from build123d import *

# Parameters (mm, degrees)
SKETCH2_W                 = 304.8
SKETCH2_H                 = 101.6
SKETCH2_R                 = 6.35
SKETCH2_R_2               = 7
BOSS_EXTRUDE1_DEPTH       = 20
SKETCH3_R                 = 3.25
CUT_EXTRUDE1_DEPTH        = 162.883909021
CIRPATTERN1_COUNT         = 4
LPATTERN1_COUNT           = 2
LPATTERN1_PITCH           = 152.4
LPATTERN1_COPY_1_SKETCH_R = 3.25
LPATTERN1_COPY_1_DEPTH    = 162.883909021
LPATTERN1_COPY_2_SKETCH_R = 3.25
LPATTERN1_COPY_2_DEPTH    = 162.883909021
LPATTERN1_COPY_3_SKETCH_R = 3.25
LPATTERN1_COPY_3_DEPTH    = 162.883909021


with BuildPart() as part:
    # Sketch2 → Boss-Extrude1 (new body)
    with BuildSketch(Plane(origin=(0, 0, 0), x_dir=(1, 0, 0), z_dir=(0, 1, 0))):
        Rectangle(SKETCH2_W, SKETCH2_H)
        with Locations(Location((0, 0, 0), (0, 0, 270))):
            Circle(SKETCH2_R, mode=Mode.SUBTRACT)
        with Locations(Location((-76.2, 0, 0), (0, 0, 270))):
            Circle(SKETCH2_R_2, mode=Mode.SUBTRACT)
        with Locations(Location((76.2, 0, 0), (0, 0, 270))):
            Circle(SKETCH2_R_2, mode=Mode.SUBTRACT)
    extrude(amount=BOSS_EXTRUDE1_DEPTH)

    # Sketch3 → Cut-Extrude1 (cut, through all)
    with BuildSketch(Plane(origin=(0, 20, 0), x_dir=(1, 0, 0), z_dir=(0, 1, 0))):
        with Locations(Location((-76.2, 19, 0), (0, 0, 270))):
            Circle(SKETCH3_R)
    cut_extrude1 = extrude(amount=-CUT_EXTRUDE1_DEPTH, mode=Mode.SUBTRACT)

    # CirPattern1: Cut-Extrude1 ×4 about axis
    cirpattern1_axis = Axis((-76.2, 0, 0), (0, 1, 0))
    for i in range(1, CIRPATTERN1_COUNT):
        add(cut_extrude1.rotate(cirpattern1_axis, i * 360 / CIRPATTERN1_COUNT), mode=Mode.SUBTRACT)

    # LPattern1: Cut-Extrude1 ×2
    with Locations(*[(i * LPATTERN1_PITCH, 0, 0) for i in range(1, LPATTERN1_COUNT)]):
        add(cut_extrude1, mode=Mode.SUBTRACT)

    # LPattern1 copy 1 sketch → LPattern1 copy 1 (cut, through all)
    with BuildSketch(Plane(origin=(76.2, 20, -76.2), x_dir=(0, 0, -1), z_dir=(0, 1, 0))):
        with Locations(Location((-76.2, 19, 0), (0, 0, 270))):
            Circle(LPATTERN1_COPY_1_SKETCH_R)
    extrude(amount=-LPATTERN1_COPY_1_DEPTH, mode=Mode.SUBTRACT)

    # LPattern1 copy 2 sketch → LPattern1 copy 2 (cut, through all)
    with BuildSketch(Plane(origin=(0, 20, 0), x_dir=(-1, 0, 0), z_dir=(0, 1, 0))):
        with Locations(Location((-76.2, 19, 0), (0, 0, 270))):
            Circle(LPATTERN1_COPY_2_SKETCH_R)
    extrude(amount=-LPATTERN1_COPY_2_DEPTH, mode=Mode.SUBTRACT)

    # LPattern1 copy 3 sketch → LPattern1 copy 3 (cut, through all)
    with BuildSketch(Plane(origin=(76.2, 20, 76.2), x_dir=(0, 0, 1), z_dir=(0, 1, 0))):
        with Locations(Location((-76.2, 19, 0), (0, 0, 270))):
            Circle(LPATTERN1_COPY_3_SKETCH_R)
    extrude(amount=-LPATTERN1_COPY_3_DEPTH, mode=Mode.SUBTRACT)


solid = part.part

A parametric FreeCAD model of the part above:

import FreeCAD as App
import Part
import Sketcher

V = App.Vector
Q = App.Units.Quantity


def add_polygon(sketch, points):
    """Adds a closed chain of lines whose ends are joined by coincident constraints."""
    first, n = sketch.GeometryCount, len(points)
    for a, b in zip(points, points[1:] + points[:1]):
        sketch.addGeometry(Part.LineSegment(App.Vector(*a, 0), App.Vector(*b, 0)), False)
    for i in range(n):
        sketch.addConstraint(Sketcher.Constraint("Coincident", first + i, 2, first + (i + 1) % n, 1))

doc = App.newDocument("Part")
body = doc.addObject("PartDesign::Body", "Body")

# Sketch on XZ plane
sketch1 = doc.addObject("Sketcher::SketchObject", "Sketch")
body.addObject(sketch1)
sketch1.AttachmentSupport = (doc.XZ_Plane, [""])
sketch1.MapMode = "FlatFace"
add_polygon(sketch1, [(-152.4, -50.8), (-152.4, 50.8), (152.4, 50.8), (152.4, -50.8)])  # lines 0-3
sketch1.addGeometry(Part.Circle(V(-76.2, 0, 0), V(0, 0, 1), 7), False)  # 4
sketch1.addGeometry(Part.Circle(V(0, 0, 0), V(0, 0, 1), 6.35), False)  # 5
sketch1.addGeometry(Part.Circle(V(76.2, 0, 0), V(0, 0, 1), 7), False)  # 6
sketch1.addConstraint([
    Sketcher.Constraint("Vertical", 0),
    Sketcher.Constraint("Horizontal", 1),
    Sketcher.Constraint("Vertical", 2),
    Sketcher.Constraint("Horizontal", 3),
    Sketcher.Constraint("Coincident", 5, 3, -1, 1),
    Sketcher.Constraint("Equal", 4, 6),
    Sketcher.Constraint("Symmetric", 4, 3, 6, 3, -1, 1),
    Sketcher.Constraint("Symmetric", 0, 2, 2, 2, -1, 1),
    Sketcher.Constraint("PointOnObject", 4, 3, -1),
    Sketcher.Constraint("Diameter", 4, Q("14 mm")),
    Sketcher.Constraint("Diameter", 5, Q("12.7 mm")),
    Sketcher.Constraint("DistanceX", 1, 1, 1, 2, Q("304.8 mm")),
    Sketcher.Constraint("DistanceY", 0, 1, 0, 2, Q("101.6 mm")),
    Sketcher.Constraint("DistanceX", 4, 3, -1, 1, Q("76.2 mm")),
])
pad1 = doc.addObject("PartDesign::Pad", "Pad")
body.addObject(pad1)
pad1.Profile = sketch1
pad1.Length = 20
pad1.Reversed = True

# Sketch on XZ plane
sketch2 = doc.addObject("Sketcher::SketchObject", "Sketch001")
body.addObject(sketch2)
sketch2.AttachmentSupport = (doc.XZ_Plane, [""])
sketch2.MapMode = "FlatFace"
sketch2.AttachmentOffset = App.Placement(V(0, 0, -20), App.Rotation())
sketch2.addGeometry(Part.Circle(V(-76.2, -19, 0), V(0, 0, 1), 3.25), False)
sketch2.addConstraint([
    Sketcher.Constraint("Diameter", 0, Q("6.5 mm")),
    Sketcher.Constraint("DistanceY", 0, 3, -1, 1, Q("19 mm")),
    Sketcher.Constraint("DistanceX", 0, 3, -1, 1, Q("76.2 mm")),
])
pocket1 = doc.addObject("PartDesign::Pocket", "Pocket")
body.addObject(pocket1)
pocket1.Profile = sketch2
pocket1.Type = "ThroughAll"
pocket1.Reversed = True
doc.recompute()

datumline = doc.addObject("PartDesign::Line", "DatumLine")
body.addObject(datumline)
datumline.Placement = App.Placement(V(-76.2, 0, 0), App.Rotation(V(0, 0, 1), V(0, 1, 0)))
polarpattern = doc.addObject("PartDesign::PolarPattern", "PolarPattern")
body.addObject(polarpattern)
polarpattern.Originals = [pocket1]
polarpattern.Axis = (datumline, [""])
polarpattern.Angle = 360
polarpattern.Occurrences = 4
body.Tip = polarpattern
doc.recompute()

linearpattern = doc.addObject("PartDesign::LinearPattern", "LinearPattern")
body.addObject(linearpattern)
linearpattern.Originals = [pocket1]
linearpattern.Direction = (doc.X_Axis, [""])
linearpattern.Mode = "offset"
linearpattern.Offset = 152.4
linearpattern.Occurrences = 2
body.Tip = linearpattern

# Sketch on XZ plane
sketch3 = doc.addObject("Sketcher::SketchObject", "Sketch002")
body.addObject(sketch3)
sketch3.AttachmentSupport = (doc.XZ_Plane, [""])
sketch3.MapMode = "FlatFace"
sketch3.AttachmentOffset = App.Placement(V(0, 0, -20), App.Rotation())
sketch3.addGeometry(Part.Circle(V(57.2, 0, 0), V(0, 0, 1), 3.25), False)
sketch3.addConstraint([
    Sketcher.Constraint("PointOnObject", 0, 3, -1),
    Sketcher.Constraint("Diameter", 0, Q("6.5 mm")),
    Sketcher.Constraint("DistanceX", -1, 1, 0, 3, Q("57.2 mm")),
])
pocket2 = doc.addObject("PartDesign::Pocket", "Pocket001")
body.addObject(pocket2)
pocket2.Profile = sketch3
pocket2.Type = "ThroughAll"
pocket2.Reversed = True

# Sketch on XZ plane
sketch4 = doc.addObject("Sketcher::SketchObject", "Sketch003")
body.addObject(sketch4)
sketch4.AttachmentSupport = (doc.XZ_Plane, [""])
sketch4.MapMode = "FlatFace"
sketch4.AttachmentOffset = App.Placement(V(0, 0, -20), App.Rotation())
sketch4.addGeometry(Part.Circle(V(76.2, 19, 0), V(0, 0, 1), 3.25), False)
sketch4.addConstraint([
    Sketcher.Constraint("Diameter", 0, Q("6.5 mm")),
    Sketcher.Constraint("DistanceY", -1, 1, 0, 3, Q("19 mm")),
    Sketcher.Constraint("DistanceX", -1, 1, 0, 3, Q("76.2 mm")),
])
pocket3 = doc.addObject("PartDesign::Pocket", "Pocket002")
body.addObject(pocket3)
pocket3.Profile = sketch4
pocket3.Type = "ThroughAll"
pocket3.Reversed = True

# Sketch on XZ plane
sketch5 = doc.addObject("Sketcher::SketchObject", "Sketch004")
body.addObject(sketch5)
sketch5.AttachmentSupport = (doc.XZ_Plane, [""])
sketch5.MapMode = "FlatFace"
sketch5.AttachmentOffset = App.Placement(V(0, 0, -20), App.Rotation())
sketch5.addGeometry(Part.Circle(V(95.2, 0, 0), V(0, 0, 1), 3.25), False)
sketch5.addConstraint([
    Sketcher.Constraint("PointOnObject", 0, 3, -1),
    Sketcher.Constraint("Diameter", 0, Q("6.5 mm")),
    Sketcher.Constraint("DistanceX", -1, 1, 0, 3, Q("95.2 mm")),
])
pocket4 = doc.addObject("PartDesign::Pocket", "Pocket003")
body.addObject(pocket4)
pocket4.Profile = sketch5
pocket4.Type = "ThroughAll"
pocket4.Reversed = True

doc.recompute()
